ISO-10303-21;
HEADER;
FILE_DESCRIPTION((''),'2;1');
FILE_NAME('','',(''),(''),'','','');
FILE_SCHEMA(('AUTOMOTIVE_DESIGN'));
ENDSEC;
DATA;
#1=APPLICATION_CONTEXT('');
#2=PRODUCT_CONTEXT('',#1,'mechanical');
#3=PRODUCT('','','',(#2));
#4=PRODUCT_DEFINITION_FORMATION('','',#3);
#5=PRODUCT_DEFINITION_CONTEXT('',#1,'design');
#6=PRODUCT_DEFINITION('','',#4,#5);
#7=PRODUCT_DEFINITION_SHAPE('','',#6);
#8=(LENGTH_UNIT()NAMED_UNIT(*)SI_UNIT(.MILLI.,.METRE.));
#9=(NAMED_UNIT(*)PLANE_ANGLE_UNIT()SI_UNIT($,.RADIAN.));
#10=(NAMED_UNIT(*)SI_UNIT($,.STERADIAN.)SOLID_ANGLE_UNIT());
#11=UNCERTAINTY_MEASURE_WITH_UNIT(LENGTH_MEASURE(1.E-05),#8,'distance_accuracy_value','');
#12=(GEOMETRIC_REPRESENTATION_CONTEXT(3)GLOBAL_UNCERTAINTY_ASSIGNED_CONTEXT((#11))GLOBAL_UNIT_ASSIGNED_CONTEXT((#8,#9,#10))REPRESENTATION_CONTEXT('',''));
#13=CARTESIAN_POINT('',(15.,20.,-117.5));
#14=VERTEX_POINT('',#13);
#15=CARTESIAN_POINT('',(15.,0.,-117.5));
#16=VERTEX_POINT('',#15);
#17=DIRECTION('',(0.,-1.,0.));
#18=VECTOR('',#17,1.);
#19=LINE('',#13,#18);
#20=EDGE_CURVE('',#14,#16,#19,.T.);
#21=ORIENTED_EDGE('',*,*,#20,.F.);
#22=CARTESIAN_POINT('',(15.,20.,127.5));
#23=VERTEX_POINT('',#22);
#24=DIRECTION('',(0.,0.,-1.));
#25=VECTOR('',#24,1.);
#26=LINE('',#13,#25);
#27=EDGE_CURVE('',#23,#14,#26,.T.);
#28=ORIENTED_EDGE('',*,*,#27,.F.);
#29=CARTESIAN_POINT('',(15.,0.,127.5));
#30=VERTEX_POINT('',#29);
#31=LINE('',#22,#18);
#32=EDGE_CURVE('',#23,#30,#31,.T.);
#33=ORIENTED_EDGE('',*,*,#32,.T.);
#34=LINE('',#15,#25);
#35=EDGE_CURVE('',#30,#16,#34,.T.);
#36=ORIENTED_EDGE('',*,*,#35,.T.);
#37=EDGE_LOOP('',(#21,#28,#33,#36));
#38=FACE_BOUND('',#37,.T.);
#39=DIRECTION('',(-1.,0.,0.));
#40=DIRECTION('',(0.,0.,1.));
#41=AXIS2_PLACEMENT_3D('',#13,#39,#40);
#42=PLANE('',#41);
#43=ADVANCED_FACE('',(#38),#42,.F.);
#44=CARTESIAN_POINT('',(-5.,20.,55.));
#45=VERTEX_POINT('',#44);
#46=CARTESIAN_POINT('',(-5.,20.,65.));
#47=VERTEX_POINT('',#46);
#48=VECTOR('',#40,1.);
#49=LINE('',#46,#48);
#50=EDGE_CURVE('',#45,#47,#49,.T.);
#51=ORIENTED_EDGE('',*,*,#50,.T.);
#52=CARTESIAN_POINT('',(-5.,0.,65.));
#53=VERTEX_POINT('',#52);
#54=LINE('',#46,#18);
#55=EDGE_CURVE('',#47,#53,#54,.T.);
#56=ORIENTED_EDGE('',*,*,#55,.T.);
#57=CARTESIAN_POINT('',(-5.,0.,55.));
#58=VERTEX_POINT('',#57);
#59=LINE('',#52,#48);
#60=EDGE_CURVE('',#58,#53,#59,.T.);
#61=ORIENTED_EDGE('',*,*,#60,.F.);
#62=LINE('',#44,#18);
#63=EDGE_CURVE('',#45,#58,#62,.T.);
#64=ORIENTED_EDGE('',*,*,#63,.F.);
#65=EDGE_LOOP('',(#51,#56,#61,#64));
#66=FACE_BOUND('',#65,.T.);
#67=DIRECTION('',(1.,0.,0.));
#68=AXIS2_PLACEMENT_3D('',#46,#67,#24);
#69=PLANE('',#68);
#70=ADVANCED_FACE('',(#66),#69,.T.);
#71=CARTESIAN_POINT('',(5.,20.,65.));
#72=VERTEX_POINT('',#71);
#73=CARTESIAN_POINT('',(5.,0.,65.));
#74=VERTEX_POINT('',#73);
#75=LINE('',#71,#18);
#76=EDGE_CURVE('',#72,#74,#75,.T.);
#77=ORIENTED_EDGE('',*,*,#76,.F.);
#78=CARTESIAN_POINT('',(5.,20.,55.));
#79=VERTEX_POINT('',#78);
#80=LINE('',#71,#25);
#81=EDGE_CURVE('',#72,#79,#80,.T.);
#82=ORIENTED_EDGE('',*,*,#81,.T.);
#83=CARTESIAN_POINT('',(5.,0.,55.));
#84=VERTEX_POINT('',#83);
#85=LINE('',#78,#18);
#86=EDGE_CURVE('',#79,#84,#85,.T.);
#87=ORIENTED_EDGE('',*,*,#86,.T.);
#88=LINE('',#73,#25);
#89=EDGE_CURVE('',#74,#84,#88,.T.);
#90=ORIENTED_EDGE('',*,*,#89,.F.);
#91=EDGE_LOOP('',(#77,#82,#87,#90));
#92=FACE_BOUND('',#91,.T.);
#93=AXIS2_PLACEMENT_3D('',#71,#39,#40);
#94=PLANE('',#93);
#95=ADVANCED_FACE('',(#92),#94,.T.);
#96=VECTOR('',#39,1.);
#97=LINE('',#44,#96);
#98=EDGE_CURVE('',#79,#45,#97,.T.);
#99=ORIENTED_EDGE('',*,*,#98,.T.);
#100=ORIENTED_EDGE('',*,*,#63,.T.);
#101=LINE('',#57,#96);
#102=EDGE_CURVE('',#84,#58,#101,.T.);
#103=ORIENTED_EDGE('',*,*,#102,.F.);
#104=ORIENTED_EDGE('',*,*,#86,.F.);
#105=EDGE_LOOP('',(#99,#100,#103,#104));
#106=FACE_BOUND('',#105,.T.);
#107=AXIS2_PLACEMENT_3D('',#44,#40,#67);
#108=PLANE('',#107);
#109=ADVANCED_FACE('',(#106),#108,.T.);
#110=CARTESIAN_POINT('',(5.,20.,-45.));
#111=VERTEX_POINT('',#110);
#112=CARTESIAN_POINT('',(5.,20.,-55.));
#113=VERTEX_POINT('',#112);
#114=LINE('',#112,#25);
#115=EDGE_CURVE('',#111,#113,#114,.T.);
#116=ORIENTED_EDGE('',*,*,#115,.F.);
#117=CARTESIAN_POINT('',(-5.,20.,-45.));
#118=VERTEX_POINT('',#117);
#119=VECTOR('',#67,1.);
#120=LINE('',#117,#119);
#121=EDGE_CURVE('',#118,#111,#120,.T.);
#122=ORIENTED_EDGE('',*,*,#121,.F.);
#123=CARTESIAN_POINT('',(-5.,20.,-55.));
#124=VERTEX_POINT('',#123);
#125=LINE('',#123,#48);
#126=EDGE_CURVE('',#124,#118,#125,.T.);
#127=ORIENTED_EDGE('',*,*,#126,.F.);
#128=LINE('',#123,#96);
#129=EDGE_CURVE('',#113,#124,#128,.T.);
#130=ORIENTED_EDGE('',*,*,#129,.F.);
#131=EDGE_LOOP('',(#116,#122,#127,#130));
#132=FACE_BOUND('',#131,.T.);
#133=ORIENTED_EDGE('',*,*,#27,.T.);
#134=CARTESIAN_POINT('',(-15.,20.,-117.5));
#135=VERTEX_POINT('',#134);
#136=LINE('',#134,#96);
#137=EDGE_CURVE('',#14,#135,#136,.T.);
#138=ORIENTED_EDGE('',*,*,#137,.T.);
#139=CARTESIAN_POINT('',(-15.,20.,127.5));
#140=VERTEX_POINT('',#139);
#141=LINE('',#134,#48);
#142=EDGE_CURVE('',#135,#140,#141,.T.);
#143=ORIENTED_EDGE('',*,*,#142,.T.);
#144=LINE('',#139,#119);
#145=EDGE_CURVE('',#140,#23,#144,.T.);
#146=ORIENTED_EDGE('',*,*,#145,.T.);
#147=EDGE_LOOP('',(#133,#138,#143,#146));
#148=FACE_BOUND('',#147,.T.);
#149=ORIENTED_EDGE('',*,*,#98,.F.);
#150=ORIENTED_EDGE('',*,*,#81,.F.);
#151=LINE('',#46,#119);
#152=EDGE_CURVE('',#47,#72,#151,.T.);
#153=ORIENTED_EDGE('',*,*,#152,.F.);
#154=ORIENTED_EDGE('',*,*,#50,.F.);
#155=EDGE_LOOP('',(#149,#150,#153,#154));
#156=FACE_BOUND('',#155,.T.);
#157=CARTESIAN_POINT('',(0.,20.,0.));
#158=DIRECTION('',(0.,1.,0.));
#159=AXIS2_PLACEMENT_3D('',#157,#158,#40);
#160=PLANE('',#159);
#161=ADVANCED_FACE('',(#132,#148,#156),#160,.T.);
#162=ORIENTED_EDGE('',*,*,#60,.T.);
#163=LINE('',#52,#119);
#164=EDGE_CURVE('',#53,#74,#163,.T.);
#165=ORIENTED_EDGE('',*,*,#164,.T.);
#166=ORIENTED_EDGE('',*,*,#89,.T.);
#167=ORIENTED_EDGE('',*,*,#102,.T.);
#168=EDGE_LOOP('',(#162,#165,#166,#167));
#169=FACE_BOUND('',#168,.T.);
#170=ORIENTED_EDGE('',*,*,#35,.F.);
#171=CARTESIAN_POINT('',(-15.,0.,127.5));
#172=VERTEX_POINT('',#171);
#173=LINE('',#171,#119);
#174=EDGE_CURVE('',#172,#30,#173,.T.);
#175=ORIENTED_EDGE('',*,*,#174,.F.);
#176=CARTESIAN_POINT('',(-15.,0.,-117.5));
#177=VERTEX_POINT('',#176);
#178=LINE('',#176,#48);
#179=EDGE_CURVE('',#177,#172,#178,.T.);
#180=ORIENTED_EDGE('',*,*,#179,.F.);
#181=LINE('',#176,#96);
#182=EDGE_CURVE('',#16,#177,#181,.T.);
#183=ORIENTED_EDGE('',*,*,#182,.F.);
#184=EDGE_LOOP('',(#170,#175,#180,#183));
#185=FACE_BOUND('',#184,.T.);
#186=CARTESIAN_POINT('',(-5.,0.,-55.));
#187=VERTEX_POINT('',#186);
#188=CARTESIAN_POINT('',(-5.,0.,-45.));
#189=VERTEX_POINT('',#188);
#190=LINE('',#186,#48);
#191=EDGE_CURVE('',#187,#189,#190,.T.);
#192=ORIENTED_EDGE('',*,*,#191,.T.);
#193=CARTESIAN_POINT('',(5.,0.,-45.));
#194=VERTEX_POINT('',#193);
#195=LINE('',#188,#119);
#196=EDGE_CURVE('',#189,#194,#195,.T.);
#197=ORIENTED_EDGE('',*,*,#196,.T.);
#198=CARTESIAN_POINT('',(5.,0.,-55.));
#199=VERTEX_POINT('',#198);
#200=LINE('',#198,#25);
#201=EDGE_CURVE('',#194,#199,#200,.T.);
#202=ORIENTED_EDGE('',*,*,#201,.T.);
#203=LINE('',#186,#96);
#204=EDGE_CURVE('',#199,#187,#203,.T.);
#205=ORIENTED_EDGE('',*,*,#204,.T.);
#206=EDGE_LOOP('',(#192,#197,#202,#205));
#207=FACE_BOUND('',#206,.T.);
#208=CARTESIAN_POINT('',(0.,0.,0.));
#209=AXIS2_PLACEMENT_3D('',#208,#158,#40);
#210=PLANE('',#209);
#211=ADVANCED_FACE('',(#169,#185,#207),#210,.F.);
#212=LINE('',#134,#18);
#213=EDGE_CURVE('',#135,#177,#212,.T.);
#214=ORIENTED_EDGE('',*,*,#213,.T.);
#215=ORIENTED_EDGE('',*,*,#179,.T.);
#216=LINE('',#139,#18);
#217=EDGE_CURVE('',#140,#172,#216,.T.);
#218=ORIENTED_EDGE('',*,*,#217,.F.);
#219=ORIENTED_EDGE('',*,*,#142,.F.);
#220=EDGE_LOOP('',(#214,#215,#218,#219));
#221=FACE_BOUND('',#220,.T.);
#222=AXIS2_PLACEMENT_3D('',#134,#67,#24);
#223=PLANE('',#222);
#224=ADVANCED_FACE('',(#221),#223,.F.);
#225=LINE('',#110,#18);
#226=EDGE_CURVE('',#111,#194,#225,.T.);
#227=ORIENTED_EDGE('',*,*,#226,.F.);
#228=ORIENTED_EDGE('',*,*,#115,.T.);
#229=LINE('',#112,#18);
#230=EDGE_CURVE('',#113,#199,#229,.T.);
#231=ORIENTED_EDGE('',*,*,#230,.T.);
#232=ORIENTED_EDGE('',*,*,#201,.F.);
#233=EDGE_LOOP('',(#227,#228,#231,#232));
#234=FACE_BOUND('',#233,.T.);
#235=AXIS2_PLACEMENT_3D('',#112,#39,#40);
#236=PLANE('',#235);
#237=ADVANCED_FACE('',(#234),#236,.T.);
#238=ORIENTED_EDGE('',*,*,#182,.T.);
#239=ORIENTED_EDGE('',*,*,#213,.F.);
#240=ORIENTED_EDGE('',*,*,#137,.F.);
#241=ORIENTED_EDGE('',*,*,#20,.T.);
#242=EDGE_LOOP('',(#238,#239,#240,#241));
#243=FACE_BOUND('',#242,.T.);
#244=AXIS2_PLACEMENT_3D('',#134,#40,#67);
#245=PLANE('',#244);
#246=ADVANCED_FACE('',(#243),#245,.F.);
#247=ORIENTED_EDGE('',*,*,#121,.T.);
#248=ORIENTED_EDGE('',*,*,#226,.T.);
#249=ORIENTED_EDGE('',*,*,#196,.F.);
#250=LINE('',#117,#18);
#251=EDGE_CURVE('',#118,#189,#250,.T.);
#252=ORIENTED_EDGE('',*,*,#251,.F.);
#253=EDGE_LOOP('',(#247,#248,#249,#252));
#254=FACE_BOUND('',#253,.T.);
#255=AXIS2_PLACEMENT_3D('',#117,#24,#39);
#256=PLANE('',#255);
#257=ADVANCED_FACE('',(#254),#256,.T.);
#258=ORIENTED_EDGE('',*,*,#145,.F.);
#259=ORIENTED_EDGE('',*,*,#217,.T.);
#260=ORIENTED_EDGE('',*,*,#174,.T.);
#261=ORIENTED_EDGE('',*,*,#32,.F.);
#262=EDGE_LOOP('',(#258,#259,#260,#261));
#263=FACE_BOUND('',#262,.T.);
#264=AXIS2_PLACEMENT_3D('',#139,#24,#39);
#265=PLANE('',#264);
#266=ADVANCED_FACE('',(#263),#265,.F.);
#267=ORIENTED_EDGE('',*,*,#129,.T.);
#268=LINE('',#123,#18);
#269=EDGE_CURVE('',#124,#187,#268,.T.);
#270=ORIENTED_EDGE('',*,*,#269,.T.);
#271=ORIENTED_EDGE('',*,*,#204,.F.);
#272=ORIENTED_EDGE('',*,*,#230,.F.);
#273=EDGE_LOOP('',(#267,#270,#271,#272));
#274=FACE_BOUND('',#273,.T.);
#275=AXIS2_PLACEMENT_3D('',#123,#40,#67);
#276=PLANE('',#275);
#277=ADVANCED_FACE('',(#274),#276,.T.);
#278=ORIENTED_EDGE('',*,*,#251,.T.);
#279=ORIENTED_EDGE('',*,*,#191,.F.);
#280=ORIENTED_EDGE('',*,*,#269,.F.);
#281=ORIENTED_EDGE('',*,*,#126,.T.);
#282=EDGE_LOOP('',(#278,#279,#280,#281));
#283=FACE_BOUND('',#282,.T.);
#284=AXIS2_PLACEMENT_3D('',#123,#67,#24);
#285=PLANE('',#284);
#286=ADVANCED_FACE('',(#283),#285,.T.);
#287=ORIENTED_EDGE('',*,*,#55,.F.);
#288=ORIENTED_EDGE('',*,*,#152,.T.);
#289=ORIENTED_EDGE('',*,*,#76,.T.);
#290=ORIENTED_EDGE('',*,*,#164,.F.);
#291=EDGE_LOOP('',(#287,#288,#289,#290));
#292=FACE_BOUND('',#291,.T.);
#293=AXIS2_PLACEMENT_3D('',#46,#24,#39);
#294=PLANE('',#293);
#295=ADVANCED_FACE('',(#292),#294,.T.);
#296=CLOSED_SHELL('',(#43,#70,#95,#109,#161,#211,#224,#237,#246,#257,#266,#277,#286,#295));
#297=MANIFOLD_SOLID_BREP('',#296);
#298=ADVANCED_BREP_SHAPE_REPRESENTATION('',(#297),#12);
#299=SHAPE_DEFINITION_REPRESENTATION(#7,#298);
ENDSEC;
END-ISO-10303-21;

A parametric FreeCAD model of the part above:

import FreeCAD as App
import Part
import Sketcher
from FreeCAD import Vector


def add_polygon(sketch, points):
    """Adds a closed chain of lines whose ends are joined by coincident constraints."""
    first, n = sketch.GeometryCount, len(points)
    for a, b in zip(points, points[1:] + points[:1]):
        sketch.addGeometry(Part.LineSegment(App.Vector(*a, 0), App.Vector(*b, 0)), False)
    for i in range(n):
        sketch.addConstraint(Sketcher.Constraint("Coincident", first + i, 2, first + (i + 1) % n, 1))

doc = App.newDocument("Part")
body = doc.addObject("PartDesign::Body", "Body")

# Sketch on XZ plane
sketch1 = doc.addObject("Sketcher::SketchObject", "Sketch")
body.addObject(sketch1)
sketch1.AttachmentSupport = (doc.XZ_Plane, [""])
sketch1.MapMode = "FlatFace"
add_polygon(sketch1, [(-15, -118), (-15, 128), (15, 128), (15, -118)])  # lines 0-3
add_polygon(sketch1, [(5, 65), (-5, 65), (-5, 55), (5, 55)])  # lines 4-7
add_polygon(sketch1, [(5, -45), (-5, -45), (-5, -55), (5, -55)])  # lines 8-11
sketch1.addConstraint([
    Sketcher.Constraint("Vertical", 0),
    Sketcher.Constraint("Horizontal", 1),
    Sketcher.Constraint("Vertical", 2),
    Sketcher.Constraint("Horizontal", 3),
    Sketcher.Constraint("Horizontal", 4),
    Sketcher.Constraint("Vertical", 5),
    Sketcher.Constraint("Horizontal", 6),
    Sketcher.Constraint("Vertical", 7),
    Sketcher.Constraint("Horizontal", 8),
    Sketcher.Constraint("Vertical", 9),
    Sketcher.Constraint("Horizontal", 10),
    Sketcher.Constraint("Vertical", 11),
    Sketcher.Constraint("Symmetric", 6, 2, 9, 2, -1, 1),
    Sketcher.Constraint("Vertical", 5, 2, 8, 2),
    Sketcher.Constraint("Vertical", 7, 2, 10, 2),
    Sketcher.Constraint("Equal", 10, 5),
    Sketcher.Constraint("Equal", 7, 9),
    Sketcher.Constraint("DistanceX", 1, 1, 1, 2, 30.0),
    Sketcher.Constraint("DistanceX", 4, 2, 4, 1, 10.0),
    Sketcher.Constraint("DistanceY", 0, 1, 0, 2, 245.0),
    Sketcher.Constraint("DistanceX", 0, 2, -1, 1, 15.0),
    Sketcher.Constraint("DistanceY", -1, 1, 4, 2, 65.0),
    Sketcher.Constraint("DistanceY", -1, 1, 0, 2, 127.5),
])
pad1 = doc.addObject("PartDesign::Pad", "Pad")
body.addObject(pad1)
pad1.Profile = sketch1
pad1.Length = 20
pad1.Reversed = True

doc.recompute()
